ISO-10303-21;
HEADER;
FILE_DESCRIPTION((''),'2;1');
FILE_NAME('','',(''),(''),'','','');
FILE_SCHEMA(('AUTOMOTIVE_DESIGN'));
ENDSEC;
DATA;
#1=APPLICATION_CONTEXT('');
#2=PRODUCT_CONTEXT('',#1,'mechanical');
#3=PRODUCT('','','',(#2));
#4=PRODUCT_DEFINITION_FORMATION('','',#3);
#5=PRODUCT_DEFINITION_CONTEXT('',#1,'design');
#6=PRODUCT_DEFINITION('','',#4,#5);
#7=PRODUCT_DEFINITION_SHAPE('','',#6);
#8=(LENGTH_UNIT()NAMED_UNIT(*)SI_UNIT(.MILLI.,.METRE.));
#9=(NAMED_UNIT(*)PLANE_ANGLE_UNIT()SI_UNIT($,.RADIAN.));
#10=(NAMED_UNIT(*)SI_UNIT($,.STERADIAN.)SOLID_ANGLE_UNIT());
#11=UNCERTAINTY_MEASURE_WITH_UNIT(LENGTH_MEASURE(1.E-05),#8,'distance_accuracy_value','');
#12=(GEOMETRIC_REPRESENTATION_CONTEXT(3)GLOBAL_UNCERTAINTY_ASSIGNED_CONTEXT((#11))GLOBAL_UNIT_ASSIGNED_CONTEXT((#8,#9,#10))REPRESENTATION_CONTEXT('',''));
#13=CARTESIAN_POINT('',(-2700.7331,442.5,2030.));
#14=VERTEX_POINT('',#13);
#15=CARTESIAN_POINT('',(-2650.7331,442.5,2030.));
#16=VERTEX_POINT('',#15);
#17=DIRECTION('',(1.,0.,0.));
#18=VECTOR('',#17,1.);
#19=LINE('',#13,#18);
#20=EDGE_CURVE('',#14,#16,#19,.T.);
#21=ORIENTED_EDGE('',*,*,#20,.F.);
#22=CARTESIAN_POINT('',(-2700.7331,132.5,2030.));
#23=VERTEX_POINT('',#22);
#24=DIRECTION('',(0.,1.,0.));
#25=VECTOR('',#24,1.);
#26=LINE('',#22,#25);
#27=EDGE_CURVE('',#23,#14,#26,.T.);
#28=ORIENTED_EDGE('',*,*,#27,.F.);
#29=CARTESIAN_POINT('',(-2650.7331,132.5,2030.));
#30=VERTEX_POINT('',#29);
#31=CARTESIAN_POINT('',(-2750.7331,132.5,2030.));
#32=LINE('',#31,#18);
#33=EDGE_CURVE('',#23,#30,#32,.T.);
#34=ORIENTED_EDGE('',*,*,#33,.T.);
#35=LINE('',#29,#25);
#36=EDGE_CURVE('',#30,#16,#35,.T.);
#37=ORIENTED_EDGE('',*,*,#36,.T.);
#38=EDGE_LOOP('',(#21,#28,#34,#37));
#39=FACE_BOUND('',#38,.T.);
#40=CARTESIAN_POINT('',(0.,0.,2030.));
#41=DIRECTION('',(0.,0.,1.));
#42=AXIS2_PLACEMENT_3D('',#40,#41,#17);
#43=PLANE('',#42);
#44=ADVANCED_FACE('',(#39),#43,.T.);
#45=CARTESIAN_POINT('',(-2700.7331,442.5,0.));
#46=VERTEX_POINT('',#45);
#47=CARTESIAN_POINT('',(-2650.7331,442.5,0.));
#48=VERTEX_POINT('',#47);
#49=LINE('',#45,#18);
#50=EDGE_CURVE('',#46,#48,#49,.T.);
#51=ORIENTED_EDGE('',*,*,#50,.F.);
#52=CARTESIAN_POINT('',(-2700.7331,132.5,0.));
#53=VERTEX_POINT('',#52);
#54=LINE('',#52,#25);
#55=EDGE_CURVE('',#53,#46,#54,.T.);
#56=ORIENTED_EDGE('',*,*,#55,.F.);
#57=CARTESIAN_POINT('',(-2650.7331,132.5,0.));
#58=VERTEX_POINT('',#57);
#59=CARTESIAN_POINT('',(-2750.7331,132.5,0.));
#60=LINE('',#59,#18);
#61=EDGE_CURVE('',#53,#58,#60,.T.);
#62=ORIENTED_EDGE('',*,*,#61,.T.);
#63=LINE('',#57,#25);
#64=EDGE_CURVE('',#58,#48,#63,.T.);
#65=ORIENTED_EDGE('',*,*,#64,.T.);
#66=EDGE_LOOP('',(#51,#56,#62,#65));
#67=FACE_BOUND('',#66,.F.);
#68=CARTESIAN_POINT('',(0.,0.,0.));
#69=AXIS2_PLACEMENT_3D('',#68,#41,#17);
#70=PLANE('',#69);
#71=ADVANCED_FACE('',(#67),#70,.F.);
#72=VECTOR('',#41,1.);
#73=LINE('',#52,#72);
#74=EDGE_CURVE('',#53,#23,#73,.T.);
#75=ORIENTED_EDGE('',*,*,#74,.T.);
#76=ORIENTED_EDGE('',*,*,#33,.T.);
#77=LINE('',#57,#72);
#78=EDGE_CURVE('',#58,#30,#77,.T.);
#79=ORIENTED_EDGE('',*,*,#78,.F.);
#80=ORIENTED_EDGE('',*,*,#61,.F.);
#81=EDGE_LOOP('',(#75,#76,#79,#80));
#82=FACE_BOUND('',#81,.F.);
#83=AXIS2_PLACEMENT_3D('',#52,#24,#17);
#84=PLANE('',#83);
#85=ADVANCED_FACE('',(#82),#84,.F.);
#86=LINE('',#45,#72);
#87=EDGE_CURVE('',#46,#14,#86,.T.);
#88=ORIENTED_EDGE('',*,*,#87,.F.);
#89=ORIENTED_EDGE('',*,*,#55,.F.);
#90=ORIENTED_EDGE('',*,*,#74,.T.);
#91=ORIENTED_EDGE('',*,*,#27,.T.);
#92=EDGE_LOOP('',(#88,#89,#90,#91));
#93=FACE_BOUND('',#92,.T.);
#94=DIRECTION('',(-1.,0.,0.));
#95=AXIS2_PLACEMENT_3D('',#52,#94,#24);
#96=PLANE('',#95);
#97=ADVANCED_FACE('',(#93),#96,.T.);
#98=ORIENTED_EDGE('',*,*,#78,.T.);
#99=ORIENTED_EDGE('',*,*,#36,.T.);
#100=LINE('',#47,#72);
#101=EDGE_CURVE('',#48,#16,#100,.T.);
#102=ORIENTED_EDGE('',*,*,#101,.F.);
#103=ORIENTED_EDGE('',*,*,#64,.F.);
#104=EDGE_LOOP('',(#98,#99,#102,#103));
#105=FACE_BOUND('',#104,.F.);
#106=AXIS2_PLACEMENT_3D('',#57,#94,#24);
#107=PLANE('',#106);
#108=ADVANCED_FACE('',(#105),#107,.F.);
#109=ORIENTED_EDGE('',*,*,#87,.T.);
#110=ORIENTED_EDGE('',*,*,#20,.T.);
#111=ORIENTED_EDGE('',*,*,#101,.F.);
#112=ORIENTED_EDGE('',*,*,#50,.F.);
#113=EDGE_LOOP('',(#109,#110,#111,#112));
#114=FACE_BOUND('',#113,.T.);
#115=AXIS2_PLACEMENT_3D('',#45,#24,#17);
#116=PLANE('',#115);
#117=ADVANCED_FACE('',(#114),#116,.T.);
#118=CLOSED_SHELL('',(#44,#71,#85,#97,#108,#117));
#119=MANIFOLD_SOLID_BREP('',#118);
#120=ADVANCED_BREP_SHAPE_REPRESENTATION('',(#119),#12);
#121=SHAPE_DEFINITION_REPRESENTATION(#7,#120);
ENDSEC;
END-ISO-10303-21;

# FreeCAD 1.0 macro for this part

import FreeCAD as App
import Part
import Sketcher

V = App.Vector
Q = App.Units.Quantity


def add_polygon(sketch, points):
    """Adds a closed chain of lines whose ends are joined by coincident constraints."""
    first, n = sketch.GeometryCount, len(points)
    for a, b in zip(points, points[1:] + points[:1]):
        sketch.addGeometry(Part.LineSegment(App.Vector(*a, 0), App.Vector(*b, 0)), False)
    for i in range(n):
        sketch.addConstraint(Sketcher.Constraint("Coincident", first + i, 2, first + (i + 1) % n, 1))

doc = App.newDocument("Part")
body = doc.addObject("PartDesign::Body", "Body")

sketch1 = body.newObject("Sketcher::SketchObject", "Sketch")
sketch1.AttachmentSupport = (doc.getObject("XY_Plane"), [""])
sketch1.MapMode = "FlatFace"
add_polygon(sketch1, [(-2650.7331, 132.5), (-2650.7331, 442.5), (-2700.7331, 442.5), (-2700.7331, 132.5)])
sketch1.addConstraint(Sketcher.Constraint("Vertical", 0))
sketch1.addConstraint(Sketcher.Constraint("Horizontal", 1))
sketch1.addConstraint(Sketcher.Constraint("Vertical", 2))
sketch1.addConstraint(Sketcher.Constraint("Horizontal", 3))
sketch1.addConstraint(Sketcher.Constraint("DistanceY", 0, 1, 0, 2, Q("310 mm")))
sketch1.addConstraint(Sketcher.Constraint("DistanceX", 1, 2, 1, 1, Q("50 mm")))
sketch1.addConstraint(Sketcher.Constraint("DistanceY", -1, 1, 0, 2, Q("442.5 mm")))
sketch1.addConstraint(Sketcher.Constraint("DistanceX", 0, 2, -1, 1, Q("2650.733 mm")))
pad1 = body.newObject("PartDesign::Pad", "Pad")
pad1.Profile = sketch1
pad1.Length = 2030

doc.recompute()
